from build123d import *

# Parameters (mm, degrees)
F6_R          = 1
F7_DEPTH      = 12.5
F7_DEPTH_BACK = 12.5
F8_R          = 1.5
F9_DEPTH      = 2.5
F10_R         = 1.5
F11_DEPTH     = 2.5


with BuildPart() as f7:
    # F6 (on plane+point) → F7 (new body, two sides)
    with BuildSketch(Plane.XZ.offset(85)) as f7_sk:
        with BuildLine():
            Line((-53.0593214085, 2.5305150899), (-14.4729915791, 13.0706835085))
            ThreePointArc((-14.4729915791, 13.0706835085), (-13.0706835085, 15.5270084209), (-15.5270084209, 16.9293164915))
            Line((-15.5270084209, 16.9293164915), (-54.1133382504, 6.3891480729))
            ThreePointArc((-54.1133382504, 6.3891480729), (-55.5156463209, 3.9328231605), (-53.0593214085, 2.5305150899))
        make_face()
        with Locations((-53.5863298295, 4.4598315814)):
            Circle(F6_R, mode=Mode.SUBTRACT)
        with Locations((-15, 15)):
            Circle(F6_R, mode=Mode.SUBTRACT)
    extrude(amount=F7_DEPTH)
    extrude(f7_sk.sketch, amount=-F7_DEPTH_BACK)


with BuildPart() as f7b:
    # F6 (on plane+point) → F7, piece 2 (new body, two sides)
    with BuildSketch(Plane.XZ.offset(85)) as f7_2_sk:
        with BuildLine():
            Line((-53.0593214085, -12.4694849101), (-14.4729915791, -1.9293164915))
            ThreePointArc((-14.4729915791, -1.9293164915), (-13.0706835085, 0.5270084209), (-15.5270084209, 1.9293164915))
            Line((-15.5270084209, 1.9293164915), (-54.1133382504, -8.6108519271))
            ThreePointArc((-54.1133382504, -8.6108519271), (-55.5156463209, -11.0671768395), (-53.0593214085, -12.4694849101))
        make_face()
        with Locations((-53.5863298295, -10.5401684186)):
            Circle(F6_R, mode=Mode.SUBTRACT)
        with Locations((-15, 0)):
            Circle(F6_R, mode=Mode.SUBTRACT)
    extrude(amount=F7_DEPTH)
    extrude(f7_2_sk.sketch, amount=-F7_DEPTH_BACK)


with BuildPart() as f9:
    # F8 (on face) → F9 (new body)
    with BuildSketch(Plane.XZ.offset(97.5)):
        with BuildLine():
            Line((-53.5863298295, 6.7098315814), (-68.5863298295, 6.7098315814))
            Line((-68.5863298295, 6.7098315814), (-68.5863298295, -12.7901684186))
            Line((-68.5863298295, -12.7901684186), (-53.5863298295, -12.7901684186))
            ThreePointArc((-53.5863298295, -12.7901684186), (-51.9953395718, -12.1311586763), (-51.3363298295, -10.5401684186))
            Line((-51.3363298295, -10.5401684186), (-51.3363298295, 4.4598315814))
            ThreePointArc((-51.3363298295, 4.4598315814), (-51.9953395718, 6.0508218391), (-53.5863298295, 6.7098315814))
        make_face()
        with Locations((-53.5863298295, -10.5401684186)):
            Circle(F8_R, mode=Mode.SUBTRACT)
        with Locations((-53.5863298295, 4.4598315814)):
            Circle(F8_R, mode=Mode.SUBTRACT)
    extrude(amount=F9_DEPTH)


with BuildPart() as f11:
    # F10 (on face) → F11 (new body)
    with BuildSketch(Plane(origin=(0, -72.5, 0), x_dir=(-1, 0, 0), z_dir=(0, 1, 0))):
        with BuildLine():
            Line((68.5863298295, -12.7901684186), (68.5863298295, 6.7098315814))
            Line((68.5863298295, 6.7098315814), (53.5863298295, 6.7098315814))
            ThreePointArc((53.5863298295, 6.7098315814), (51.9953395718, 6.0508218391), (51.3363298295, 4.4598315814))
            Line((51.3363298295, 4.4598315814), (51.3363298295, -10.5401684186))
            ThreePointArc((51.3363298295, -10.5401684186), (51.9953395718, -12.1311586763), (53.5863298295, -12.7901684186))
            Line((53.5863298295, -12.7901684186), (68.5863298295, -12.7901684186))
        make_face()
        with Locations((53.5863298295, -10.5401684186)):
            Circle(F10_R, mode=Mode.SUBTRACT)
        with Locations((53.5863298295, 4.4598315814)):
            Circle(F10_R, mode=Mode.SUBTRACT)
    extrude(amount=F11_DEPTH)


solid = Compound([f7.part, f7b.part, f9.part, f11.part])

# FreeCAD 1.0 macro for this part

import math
import FreeCAD as App
import Part
import Sketcher

doc = App.newDocument("Part")
body = doc.addObject("PartDesign::Body", "Body")

# Sketch on XZ plane
sketch1 = body.newObject("Sketcher::SketchObject", "Sketch")
sketch1.AttachmentSupport = (doc.getObject("XZ_Plane"), [""])
sketch1.MapMode = "FlatFace"
sketch1.AttachmentOffset = App.Placement(App.Vector(0, 0, 85), App.Rotation())
sketch1.addGeometry([
    Part.LineSegment(App.Vector(-53.1, 2.5, 0), App.Vector(-14.5, 13.1, 0)),  # 0
    Part.ArcOfCircle(Part.Circle(App.Vector(-15, 15, 0), App.Vector(0, 0, 1), 2), math.radians(-75), math.radians(105)),  # 1
    Part.LineSegment(App.Vector(-15.5, 16.9, 0), App.Vector(-54.1, 6.4, 0)),  # 2
    Part.ArcOfCircle(Part.Circle(App.Vector(-53.6, 4.5, 0), App.Vector(0, 0, 1), 2), math.radians(105), math.radians(285)),  # 3
    Part.Circle(App.Vector(-53.6, 4.5, 0), App.Vector(0, 0, 1), 1),  # 4
    Part.Circle(App.Vector(-15, 15, 0), App.Vector(0, 0, 1), 1),  # 5
], False)
sketch1.addConstraint([
    Sketcher.Constraint("Tangent", 0, 2, 1, 1),
    Sketcher.Constraint("Tangent", 1, 2, 2, 1),
    Sketcher.Constraint("Tangent", 2, 2, 3, 1),
    Sketcher.Constraint("Tangent", 3, 2, 0, 1),
    Sketcher.Constraint("Coincident", 4, 3, 3, 3),
    Sketcher.Constraint("Coincident", 5, 3, 1, 3),
    Sketcher.Constraint("Equal", 1, 3),
    Sketcher.Constraint("Equal", 4, 5),
    Sketcher.Constraint("Diameter", 4, 2.0),
    Sketcher.Constraint("Radius", 1, 2.0),
    Sketcher.Constraint("Distance", 0, 40.0),
    Sketcher.Constraint("DistanceX", 1, 3, -1, 1, 15.0),
    Sketcher.Constraint("DistanceY", -1, 1, 1, 3, 15.0),
    Sketcher.Constraint("DistanceX", 3, 3, -1, 1, 53.58633),
])
pad1 = body.newObject("PartDesign::Pad", "Pad")
pad1.Profile = sketch1
pad1.Type = "TwoLengths"
pad1.Length = 12.5
pad1.Length2 = 12.5
body2 = doc.addObject("PartDesign::Body", "Body001")

# Sketch on XZ plane
sketch2 = body2.newObject("Sketcher::SketchObject", "Sketch001")
sketch2.AttachmentSupport = (doc.getObject("XZ_Plane001"), [""])
sketch2.MapMode = "FlatFace"
sketch2.AttachmentOffset = App.Placement(App.Vector(0, 0, 85), App.Rotation())
sketch2.addGeometry([
    Part.LineSegment(App.Vector(-53.1, -12.5, 0), App.Vector(-14.5, -1.9, 0)),  # 0
    Part.ArcOfCircle(Part.Circle(App.Vector(-15, 0, 0), App.Vector(0, 0, 1), 2), math.radians(-75), math.radians(105)),  # 1
    Part.LineSegment(App.Vector(-15.5, 1.9, 0), App.Vector(-54.1, -8.6, 0)),  # 2
    Part.ArcOfCircle(Part.Circle(App.Vector(-53.6, -10.5, 0), App.Vector(0, 0, 1), 2), math.radians(105), math.radians(285)),  # 3
    Part.Circle(App.Vector(-53.6, -10.5, 0), App.Vector(0, 0, 1), 1),  # 4
    Part.Circle(App.Vector(-15, 0, 0), App.Vector(0, 0, 1), 1),  # 5
], False)
sketch2.addConstraint([
    Sketcher.Constraint("Tangent", 0, 2, 1, 1),
    Sketcher.Constraint("Tangent", 1, 2, 2, 1),
    Sketcher.Constraint("Tangent", 2, 2, 3, 1),
    Sketcher.Constraint("Tangent", 3, 2, 0, 1),
    Sketcher.Constraint("Coincident", 4, 3, 3, 3),
    Sketcher.Constraint("Coincident", 5, 3, 1, 3),
    Sketcher.Constraint("Equal", 1, 3),
    Sketcher.Constraint("Equal", 4, 5),
    Sketcher.Constraint("PointOnObject", 1, 3, -1),
    Sketcher.Constraint("Diameter", 4, 2.0),
    Sketcher.Constraint("Radius", 1, 2.0),
    Sketcher.Constraint("Distance", 0, 40.0),
    Sketcher.Constraint("DistanceX", 1, 3, -1, 1, 15.0),
    Sketcher.Constraint("DistanceX", 3, 3, -1, 1, 53.58633),
])
pad2 = body2.newObject("PartDesign::Pad", "Pad001")
pad2.Profile = sketch2
pad2.Type = "TwoLengths"
pad2.Length = 12.5
pad2.Length2 = 12.5
body3 = doc.addObject("PartDesign::Body", "Body002")

# Sketch on XZ plane
sketch3 = body3.newObject("Sketcher::SketchObject", "Sketch002")
sketch3.AttachmentSupport = (doc.getObject("XZ_Plane002"), [""])
sketch3.MapMode = "FlatFace"
sketch3.AttachmentOffset = App.Placement(App.Vector(0, 0, 97.5), App.Rotation())
sketch3.addGeometry([
    Part.LineSegment(App.Vector(-53.6, 6.7, 0), App.Vector(-68.6, 6.7, 0)),  # 0
    Part.LineSegment(App.Vector(-68.6, 6.7, 0), App.Vector(-68.6, -12.8, 0)),  # 1
    Part.LineSegment(App.Vector(-68.6, -12.8, 0), App.Vector(-53.6, -12.8, 0)),  # 2
    Part.ArcOfCircle(Part.Circle(App.Vector(-53.6, -10.5, 0), App.Vector(0, 0, 1), 2.2), math.radians(-90), math.radians(0)),  # 3
    Part.LineSegment(App.Vector(-51.3, -10.5, 0), App.Vector(-51.3, 4.5, 0)),  # 4
    Part.ArcOfCircle(Part.Circle(App.Vector(-53.6, 4.5, 0), App.Vector(0, 0, 1), 2.2), math.radians(0), math.radians(90)),  # 5
    Part.Circle(App.Vector(-53.6, -10.5, 0), App.Vector(0, 0, 1), 1.5),  # 6
    Part.Circle(App.Vector(-53.6, 4.5, 0), App.Vector(0, 0, 1), 1.5),  # 7
], False)
sketch3.addConstraint([
    Sketcher.Constraint("Coincident", 0, 2, 1, 1),
    Sketcher.Constraint("Coincident", 1, 2, 2, 1),
    Sketcher.Constraint("Tangent", 2, 2, 3, 1),
    Sketcher.Constraint("Tangent", 3, 2, 4, 1),
    Sketcher.Constraint("Tangent", 4, 2, 5, 1),
    Sketcher.Constraint("Tangent", 5, 2, 0, 1),
    Sketcher.Constraint("Horizontal", 0),
    Sketcher.Constraint("Vertical", 1),
    Sketcher.Constraint("Horizontal", 2),
    Sketcher.Constraint("Vertical", 4),
    Sketcher.Constraint("Coincident", 6, 3, 3, 3),
    Sketcher.Constraint("Coincident", 7, 3, 5, 3),
    Sketcher.Constraint("Equal", 3, 5),
    Sketcher.Constraint("Equal", 6, 7),
    Sketcher.Constraint("Equal", 2, 4),
    Sketcher.Constraint("Diameter", 6, 3.0),
    Sketcher.Constraint("DistanceX", 0, 2, 0, 1, 15.0),
    Sketcher.Constraint("Radius", 3, 2.25),
    Sketcher.Constraint("DistanceX", 3, 3, -1, 1, 53.58633),
    Sketcher.Constraint("DistanceY", 3, 3, -1, 1, 10.540168),
])
pad3 = body3.newObject("PartDesign::Pad", "Pad002")
pad3.Profile = sketch3
pad3.Length = 2.5
body4 = doc.addObject("PartDesign::Body", "Body003")

# Sketch on XZ plane
sketch4 = body4.newObject("Sketcher::SketchObject", "Sketch003")
sketch4.AttachmentSupport = (doc.getObject("XZ_Plane003"), [""])
sketch4.MapMode = "FlatFace"
sketch4.AttachmentOffset = App.Placement(App.Vector(0, 0, 72.5), App.Rotation())
sketch4.addGeometry([
    Part.LineSegment(App.Vector(-68.6, -12.8, 0), App.Vector(-68.6, 6.7, 0)),  # 0
    Part.LineSegment(App.Vector(-68.6, 6.7, 0), App.Vector(-53.6, 6.7, 0)),  # 1
    Part.ArcOfCircle(Part.Circle(App.Vector(-53.6, 4.5, 0), App.Vector(0, 0, 1), 2.2), math.radians(0), math.radians(90)),  # 2
    Part.LineSegment(App.Vector(-51.3, 4.5, 0), App.Vector(-51.3, -10.5, 0)),  # 3
    Part.ArcOfCircle(Part.Circle(App.Vector(-53.6, -10.5, 0), App.Vector(0, 0, 1), 2.2), math.radians(-90), math.radians(0)),  # 4
    Part.LineSegment(App.Vector(-53.6, -12.8, 0), App.Vector(-68.6, -12.8, 0)),  # 5
    Part.Circle(App.Vector(-53.6, -10.5, 0), App.Vector(0, 0, 1), 1.5),  # 6
    Part.Circle(App.Vector(-53.6, 4.5, 0), App.Vector(0, 0, 1), 1.5),  # 7
], False)
sketch4.addConstraint([
    Sketcher.Constraint("Coincident", 0, 2, 1, 1),
    Sketcher.Constraint("Tangent", 1, 2, 2, 2),
    Sketcher.Constraint("Tangent", 2, 1, 3, 1),
    Sketcher.Constraint("Tangent", 3, 2, 4, 2),
    Sketcher.Constraint("Tangent", 4, 1, 5, 1),
    Sketcher.Constraint("Coincident", 5, 2, 0, 1),
    Sketcher.Constraint("Vertical", 0),
    Sketcher.Constraint("Horizontal", 1),
    Sketcher.Constraint("Vertical", 3),
    Sketcher.Constraint("Horizontal", 5),
    Sketcher.Constraint("Coincident", 6, 3, 4, 3),
    Sketcher.Constraint("Coincident", 7, 3, 2, 3),
    Sketcher.Constraint("Equal", 2, 4),
    Sketcher.Constraint("Equal", 6, 7),
    Sketcher.Constraint("Equal", 5, 3),
    Sketcher.Constraint("Diameter", 6, 3.0),
    Sketcher.Constraint("DistanceX", 1, 1, 1, 2, 15.0),
    Sketcher.Constraint("Radius", 2, 2.25),
    Sketcher.Constraint("DistanceX", 2, 3, -1, 1, 53.58633),
    Sketcher.Constraint("DistanceY", -1, 1, 2, 3, 4.459832),
])
pad4 = body4.newObject("PartDesign::Pad", "Pad003")
pad4.Profile = sketch4
pad4.Length = 2.5
pad4.Reversed = True

doc.recompute()
